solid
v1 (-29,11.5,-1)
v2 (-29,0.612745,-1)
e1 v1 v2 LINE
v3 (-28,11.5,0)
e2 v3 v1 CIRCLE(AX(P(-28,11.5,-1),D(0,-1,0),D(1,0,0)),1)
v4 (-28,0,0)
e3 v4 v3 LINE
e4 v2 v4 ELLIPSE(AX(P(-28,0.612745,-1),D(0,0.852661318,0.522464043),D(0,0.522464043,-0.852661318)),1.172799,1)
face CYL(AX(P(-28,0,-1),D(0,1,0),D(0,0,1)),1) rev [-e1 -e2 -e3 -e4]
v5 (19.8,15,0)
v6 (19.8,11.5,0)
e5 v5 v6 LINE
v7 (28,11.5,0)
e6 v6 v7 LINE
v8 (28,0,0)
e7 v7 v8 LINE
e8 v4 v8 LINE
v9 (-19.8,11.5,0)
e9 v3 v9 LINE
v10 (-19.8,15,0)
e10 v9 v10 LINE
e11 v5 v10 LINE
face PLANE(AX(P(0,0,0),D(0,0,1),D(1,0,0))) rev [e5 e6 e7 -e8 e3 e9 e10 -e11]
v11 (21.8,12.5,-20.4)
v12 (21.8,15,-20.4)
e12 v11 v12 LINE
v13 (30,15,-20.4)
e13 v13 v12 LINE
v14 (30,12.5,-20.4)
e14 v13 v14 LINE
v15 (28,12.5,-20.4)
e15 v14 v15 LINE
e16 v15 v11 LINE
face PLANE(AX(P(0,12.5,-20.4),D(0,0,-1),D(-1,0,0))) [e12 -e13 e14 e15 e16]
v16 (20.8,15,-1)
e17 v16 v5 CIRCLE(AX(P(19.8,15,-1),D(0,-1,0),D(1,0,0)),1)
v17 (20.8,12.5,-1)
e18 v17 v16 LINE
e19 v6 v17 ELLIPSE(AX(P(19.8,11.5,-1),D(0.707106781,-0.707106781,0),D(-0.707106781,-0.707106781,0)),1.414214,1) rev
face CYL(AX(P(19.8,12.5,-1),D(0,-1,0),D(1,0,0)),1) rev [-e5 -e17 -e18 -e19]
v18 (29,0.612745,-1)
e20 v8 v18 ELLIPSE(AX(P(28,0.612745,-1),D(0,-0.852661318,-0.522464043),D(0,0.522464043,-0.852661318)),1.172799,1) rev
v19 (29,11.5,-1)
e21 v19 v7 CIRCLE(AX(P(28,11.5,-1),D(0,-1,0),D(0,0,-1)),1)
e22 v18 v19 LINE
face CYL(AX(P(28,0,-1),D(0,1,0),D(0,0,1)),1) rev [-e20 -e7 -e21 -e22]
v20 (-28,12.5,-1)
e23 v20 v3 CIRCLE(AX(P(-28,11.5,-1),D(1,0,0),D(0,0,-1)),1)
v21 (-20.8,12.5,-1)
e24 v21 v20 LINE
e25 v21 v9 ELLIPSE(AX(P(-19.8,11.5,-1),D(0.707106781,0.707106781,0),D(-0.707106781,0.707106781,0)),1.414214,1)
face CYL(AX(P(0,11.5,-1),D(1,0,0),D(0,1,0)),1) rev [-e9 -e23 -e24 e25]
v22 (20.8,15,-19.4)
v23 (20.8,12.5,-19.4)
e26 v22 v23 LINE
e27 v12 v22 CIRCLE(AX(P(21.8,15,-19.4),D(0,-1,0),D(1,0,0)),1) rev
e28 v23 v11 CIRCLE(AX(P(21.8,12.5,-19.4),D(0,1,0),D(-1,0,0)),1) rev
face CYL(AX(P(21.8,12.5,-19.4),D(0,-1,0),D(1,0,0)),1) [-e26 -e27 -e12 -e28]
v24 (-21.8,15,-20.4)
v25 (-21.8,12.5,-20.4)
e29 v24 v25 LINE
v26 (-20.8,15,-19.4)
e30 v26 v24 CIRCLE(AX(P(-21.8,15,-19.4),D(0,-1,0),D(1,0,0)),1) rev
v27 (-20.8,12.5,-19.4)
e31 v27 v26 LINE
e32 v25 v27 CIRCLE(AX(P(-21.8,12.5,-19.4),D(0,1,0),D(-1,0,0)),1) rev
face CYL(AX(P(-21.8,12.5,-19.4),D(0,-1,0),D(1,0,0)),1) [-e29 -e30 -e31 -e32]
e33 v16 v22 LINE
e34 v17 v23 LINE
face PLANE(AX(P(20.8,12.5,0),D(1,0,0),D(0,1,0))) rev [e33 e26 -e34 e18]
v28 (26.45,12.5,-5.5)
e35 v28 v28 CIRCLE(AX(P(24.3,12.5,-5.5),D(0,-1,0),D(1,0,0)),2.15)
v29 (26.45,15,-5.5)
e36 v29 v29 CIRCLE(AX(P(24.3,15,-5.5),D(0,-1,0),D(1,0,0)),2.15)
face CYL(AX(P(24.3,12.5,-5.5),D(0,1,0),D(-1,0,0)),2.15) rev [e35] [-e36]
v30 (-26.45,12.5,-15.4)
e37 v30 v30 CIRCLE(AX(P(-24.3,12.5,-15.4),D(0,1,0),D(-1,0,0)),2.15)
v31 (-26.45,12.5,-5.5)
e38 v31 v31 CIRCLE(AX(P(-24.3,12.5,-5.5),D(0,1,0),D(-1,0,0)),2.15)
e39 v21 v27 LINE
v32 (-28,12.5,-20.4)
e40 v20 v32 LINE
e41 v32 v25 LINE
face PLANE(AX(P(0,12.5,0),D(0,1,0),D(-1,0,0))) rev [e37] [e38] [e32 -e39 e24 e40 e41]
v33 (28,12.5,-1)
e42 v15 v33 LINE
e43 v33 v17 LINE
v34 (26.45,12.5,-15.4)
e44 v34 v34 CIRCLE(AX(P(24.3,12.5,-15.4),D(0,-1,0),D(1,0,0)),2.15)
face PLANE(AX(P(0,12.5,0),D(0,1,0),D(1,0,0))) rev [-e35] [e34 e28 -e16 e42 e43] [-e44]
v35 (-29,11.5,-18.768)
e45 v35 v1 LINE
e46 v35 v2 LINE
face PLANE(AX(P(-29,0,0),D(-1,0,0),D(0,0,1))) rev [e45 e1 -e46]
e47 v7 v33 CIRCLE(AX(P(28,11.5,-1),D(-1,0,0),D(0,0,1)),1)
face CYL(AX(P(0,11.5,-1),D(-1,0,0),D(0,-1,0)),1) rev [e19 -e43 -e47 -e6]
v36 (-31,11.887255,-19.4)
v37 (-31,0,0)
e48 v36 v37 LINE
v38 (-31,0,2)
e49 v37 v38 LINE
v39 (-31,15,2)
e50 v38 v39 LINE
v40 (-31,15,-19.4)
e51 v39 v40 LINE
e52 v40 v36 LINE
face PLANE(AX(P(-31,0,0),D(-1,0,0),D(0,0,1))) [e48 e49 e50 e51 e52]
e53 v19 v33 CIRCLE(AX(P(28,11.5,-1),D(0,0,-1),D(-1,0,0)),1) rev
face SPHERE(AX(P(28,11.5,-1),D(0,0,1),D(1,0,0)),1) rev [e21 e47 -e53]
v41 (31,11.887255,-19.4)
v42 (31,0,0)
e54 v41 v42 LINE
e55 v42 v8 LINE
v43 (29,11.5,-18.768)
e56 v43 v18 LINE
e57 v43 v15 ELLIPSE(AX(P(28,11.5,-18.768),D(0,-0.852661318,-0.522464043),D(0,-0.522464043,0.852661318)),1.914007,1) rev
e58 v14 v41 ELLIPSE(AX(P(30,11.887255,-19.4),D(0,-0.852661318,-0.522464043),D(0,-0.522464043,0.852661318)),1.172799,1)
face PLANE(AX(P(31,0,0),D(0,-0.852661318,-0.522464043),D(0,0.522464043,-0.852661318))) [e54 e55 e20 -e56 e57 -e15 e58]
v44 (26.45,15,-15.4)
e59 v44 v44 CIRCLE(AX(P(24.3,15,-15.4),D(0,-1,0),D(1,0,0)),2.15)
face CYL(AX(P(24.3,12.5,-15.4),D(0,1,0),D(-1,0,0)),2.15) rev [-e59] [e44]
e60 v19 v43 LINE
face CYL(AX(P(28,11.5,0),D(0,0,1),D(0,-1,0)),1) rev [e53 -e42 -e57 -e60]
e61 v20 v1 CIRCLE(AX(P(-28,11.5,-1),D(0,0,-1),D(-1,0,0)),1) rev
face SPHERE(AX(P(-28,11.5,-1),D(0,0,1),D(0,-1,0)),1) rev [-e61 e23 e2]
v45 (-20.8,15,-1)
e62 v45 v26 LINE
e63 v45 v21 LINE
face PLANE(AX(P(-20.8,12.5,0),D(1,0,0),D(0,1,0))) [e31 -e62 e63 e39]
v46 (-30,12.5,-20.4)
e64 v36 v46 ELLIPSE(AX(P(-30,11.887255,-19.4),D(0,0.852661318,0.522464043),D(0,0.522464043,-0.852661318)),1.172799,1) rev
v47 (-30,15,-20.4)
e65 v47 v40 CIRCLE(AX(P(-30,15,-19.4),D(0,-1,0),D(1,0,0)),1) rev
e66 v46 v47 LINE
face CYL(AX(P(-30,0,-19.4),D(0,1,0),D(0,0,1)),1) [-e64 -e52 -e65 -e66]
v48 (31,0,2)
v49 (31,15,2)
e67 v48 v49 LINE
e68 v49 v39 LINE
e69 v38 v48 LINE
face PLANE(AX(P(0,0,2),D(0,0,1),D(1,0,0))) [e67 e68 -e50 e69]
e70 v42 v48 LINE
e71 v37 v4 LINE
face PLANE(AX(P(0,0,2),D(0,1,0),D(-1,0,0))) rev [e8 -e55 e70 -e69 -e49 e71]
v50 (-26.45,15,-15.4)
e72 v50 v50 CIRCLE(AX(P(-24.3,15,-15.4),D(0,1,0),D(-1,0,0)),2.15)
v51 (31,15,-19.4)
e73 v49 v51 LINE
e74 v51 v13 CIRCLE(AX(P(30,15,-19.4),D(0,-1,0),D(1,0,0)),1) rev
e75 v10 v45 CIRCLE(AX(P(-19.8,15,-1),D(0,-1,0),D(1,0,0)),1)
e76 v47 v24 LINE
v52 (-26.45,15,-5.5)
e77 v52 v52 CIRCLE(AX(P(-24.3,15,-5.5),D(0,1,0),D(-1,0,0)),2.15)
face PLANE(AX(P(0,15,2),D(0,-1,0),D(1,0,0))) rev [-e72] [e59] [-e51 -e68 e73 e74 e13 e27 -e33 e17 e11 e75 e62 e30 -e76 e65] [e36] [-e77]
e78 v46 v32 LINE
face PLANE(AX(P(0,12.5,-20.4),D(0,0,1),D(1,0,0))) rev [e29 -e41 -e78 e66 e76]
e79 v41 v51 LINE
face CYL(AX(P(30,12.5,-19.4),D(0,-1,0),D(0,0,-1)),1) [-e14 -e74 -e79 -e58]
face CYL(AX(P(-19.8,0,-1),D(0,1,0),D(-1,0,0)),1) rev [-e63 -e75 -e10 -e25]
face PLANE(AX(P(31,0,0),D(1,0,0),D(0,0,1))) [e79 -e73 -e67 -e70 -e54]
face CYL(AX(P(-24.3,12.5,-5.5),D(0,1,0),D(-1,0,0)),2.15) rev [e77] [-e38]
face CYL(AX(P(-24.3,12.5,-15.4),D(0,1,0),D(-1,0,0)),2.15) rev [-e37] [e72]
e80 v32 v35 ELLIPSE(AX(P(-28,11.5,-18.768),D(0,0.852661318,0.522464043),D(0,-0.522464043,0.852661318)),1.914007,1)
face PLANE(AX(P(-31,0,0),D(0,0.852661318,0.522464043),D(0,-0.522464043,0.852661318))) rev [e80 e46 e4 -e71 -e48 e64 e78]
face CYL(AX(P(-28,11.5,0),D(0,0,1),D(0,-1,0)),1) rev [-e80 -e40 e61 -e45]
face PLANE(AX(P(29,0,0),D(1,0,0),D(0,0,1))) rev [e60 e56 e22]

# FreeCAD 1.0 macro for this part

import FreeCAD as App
import Part
import Sketcher
from FreeCAD import Vector
Q = App.Units.Quantity


def edges_at(feature, points):
    """Names of the edges that pass closest to the given points."""
    edges = feature.Shape.Edges
    near = lambda p: min(range(len(edges)), key=lambda i: edges[i].distToShape(Part.Vertex(*p))[0])
    return sorted({f"Edge{near(p) + 1}" for p in points})

doc = App.newDocument("Part")
params = doc.addObject("Spreadsheet::Sheet", "Params")
for row, (alias, value) in enumerate([
    ("sketch1_width", "29 mm"),
    ("sketch1_height", "15 mm"),
    ("pad1_length", "2 mm"),
    ("sketch2_diameter", "4.3 mm"),
    ("sketch2_width", "8.2 mm"),
    ("sketch2_height", "20.4 mm"),
    ("pad2_length", "2.5 mm"),
    ("sketch3_width", "15 mm"),
    ("sketch3_height", "2 mm"),
    ("sketch3_width2", "2.5 mm"),
    ("sketch3_height2", "22.4 mm"),
    ("pad3_length", "2 mm"),
    ("fillet_radius", "1 mm"),
    ("fillet2_radius", "1 mm"),
], start=1):
    params.set(f"A{row}", alias)
    params.set(f"B{row}", "=" + value)
    params.setAlias(f"B{row}", alias)

body = doc.addObject("PartDesign::Body", "Body")

# Sketch on XY plane
sketch1 = body.newObject("Sketcher::SketchObject", "Sketch")
sketch1.AttachmentSupport = (doc.getObject("XY_Plane"), [""])
sketch1.MapMode = "FlatFace"
sketch1.addGeometry(Part.LineSegment(Vector(-29, 15, 0), Vector(-29, 0, 0)), False)
sketch1.addGeometry(Part.LineSegment(Vector(-29, 0, 0), Vector(0, 0, 0)), False)
sketch1.addGeometry(Part.LineSegment(Vector(0, 0, 0), Vector(0, 15, 0)), False)
sketch1.addGeometry(Part.LineSegment(Vector(0, 15, 0), Vector(-29, 15, 0)), False)
sketch1.addConstraint(Sketcher.Constraint("Coincident", 0, 2, 1, 1))
sketch1.addConstraint(Sketcher.Constraint("Coincident", 1, 2, 2, 1))
sketch1.addConstraint(Sketcher.Constraint("Coincident", 2, 2, 3, 1))
sketch1.addConstraint(Sketcher.Constraint("Coincident", 3, 2, 0, 1))
sketch1.addConstraint(Sketcher.Constraint("Vertical", 0))
sketch1.addConstraint(Sketcher.Constraint("Horizontal", 1))
sketch1.addConstraint(Sketcher.Constraint("Vertical", 2))
sketch1.addConstraint(Sketcher.Constraint("Horizontal", 3))
sketch1.addConstraint(Sketcher.Constraint("Coincident", 1, 2, -1, 1))
sketch1.addConstraint(Sketcher.Constraint("DistanceX", 1, 1, 1, 2, Q("29 mm")))
sketch1.addConstraint(Sketcher.Constraint("DistanceY", 0, 2, 0, 1, Q("15 mm")))
sketch1.setExpression("Constraints[9]", "Params.sketch1_width")
sketch1.setExpression("Constraints[10]", "Params.sketch1_height")
pad1 = body.newObject("PartDesign::Pad", "Pad")
pad1.Profile = sketch1
pad1.setExpression("Length", "Params.pad1_length")

# Sketch on XZ plane
sketch2 = body.newObject("Sketcher::SketchObject", "Sketch001")
sketch2.AttachmentSupport = (doc.getObject("XZ_Plane"), [""])
sketch2.MapMode = "FlatFace"
sketch2.AttachmentOffset = App.Placement(Vector(0, 0, -15), App.Rotation())
sketch2.addGeometry(Part.LineSegment(Vector(-29, -20.4, 0), Vector(-29, 0, 0)), False)
sketch2.addGeometry(Part.LineSegment(Vector(-29, 0, 0), Vector(-20.8, 0, 0)), False)
sketch2.addGeometry(Part.LineSegment(Vector(-20.8, 0, 0), Vector(-20.8, -20.4, 0)), False)
sketch2.addGeometry(Part.LineSegment(Vector(-20.8, -20.4, 0), Vector(-29, -20.4, 0)), False)
sketch2.addGeometry(Part.Circle(Vector(-24.3, -5.5, 0), Vector(0, 0, 1), 2.15), False)
sketch2.addGeometry(Part.Circle(Vector(-24.3, -15.4, 0), Vector(0, 0, 1), 2.15), False)
sketch2.addConstraint(Sketcher.Constraint("Coincident", 0, 2, 1, 1))
sketch2.addConstraint(Sketcher.Constraint("Coincident", 1, 2, 2, 1))
sketch2.addConstraint(Sketcher.Constraint("Coincident", 2, 2, 3, 1))
sketch2.addConstraint(Sketcher.Constraint("Coincident", 3, 2, 0, 1))
sketch2.addConstraint(Sketcher.Constraint("Vertical", 0))
sketch2.addConstraint(Sketcher.Constraint("Horizontal", 1))
sketch2.addConstraint(Sketcher.Constraint("Vertical", 2))
sketch2.addConstraint(Sketcher.Constraint("Horizontal", 3))
sketch2.addConstraint(Sketcher.Constraint("Equal", 4, 5))
sketch2.addConstraint(Sketcher.Constraint("PointOnObject", 0, 2, -1))
sketch2.addConstraint(Sketcher.Constraint("Vertical", 4, 3, 5, 3))
sketch2.addConstraint(Sketcher.Constraint("Diameter", 4, Q("4.3 mm")))
sketch2.addConstraint(Sketcher.Constraint("DistanceX", 1, 1, 1, 2, Q("8.2 mm")))
sketch2.addConstraint(Sketcher.Constraint("DistanceY", 0, 1, 0, 2, Q("20.4 mm")))
sketch2.addConstraint(Sketcher.Constraint("DistanceX", 0, 2, -1, 1, Q("29 mm")))
sketch2.addConstraint(Sketcher.Constraint("DistanceY", 2, 2, 5, 3, Q("5 mm")))
sketch2.addConstraint(Sketcher.Constraint("DistanceX", 4, 3, -1, 1, Q("24.3 mm")))
sketch2.addConstraint(Sketcher.Constraint("DistanceY", 4, 3, -1, 1, Q("5.5 mm")))
sketch2.setExpression("Constraints[11]", "Params.sketch2_diameter")
sketch2.setExpression("Constraints[12]", "Params.sketch2_width")
sketch2.setExpression("Constraints[13]", "Params.sketch2_height")
pad2 = body.newObject("PartDesign::Pad", "Pad001")
pad2.Profile = sketch2
pad2.setExpression("Length", "Params.pad2_length")

# Sketch on YZ plane
sketch3 = body.newObject("Sketcher::SketchObject", "Sketch002")
sketch3.AttachmentSupport = (doc.getObject("YZ_Plane"), [""])
sketch3.MapMode = "FlatFace"
sketch3.AttachmentOffset = App.Placement(Vector(0, 0, -29), App.Rotation())
sketch3.addGeometry(Part.LineSegment(Vector(12.5, -20.4, 0), Vector(0, 0, 0)), False)
sketch3.addGeometry(Part.LineSegment(Vector(0, 0, 0), Vector(0, 2, 0)), False)
sketch3.addGeometry(Part.LineSegment(Vector(0, 2, 0), Vector(15, 2, 0)), False)
sketch3.addGeometry(Part.LineSegment(Vector(15, 2, 0), Vector(15, -20.4, 0)), False)
sketch3.addGeometry(Part.LineSegment(Vector(15, -20.4, 0), Vector(12.5, -20.4, 0)), False)
sketch3.addConstraint(Sketcher.Constraint("Coincident", 0, 2, 1, 1))
sketch3.addConstraint(Sketcher.Constraint("Coincident", 1, 2, 2, 1))
sketch3.addConstraint(Sketcher.Constraint("Coincident", 2, 2, 3, 1))
sketch3.addConstraint(Sketcher.Constraint("Coincident", 3, 2, 4, 1))
sketch3.addConstraint(Sketcher.Constraint("Coincident", 4, 2, 0, 1))
sketch3.addConstraint(Sketcher.Constraint("Vertical", 1))
sketch3.addConstraint(Sketcher.Constraint("Horizontal", 2))
sketch3.addConstraint(Sketcher.Constraint("Vertical", 3))
sketch3.addConstraint(Sketcher.Constraint("Horizontal", 4))
sketch3.addConstraint(Sketcher.Constraint("Coincident", 0, 2, -1, 1))
sketch3.addConstraint(Sketcher.Constraint("DistanceX", 2, 1, 2, 2, Q("15 mm")))
sketch3.addConstraint(Sketcher.Constraint("DistanceY", 1, 1, 1, 2, Q("2 mm")))
sketch3.addConstraint(Sketcher.Constraint("DistanceX", 4, 2, 4, 1, Q("2.5 mm")))
sketch3.addConstraint(Sketcher.Constraint("DistanceY", 3, 2, 3, 1, Q("22.4 mm")))
sketch3.setExpression("Constraints[10]", "Params.sketch3_width")
sketch3.setExpression("Constraints[11]", "Params.sketch3_height")
sketch3.setExpression("Constraints[12]", "Params.sketch3_width2")
sketch3.setExpression("Constraints[13]", "Params.sketch3_height2")
pad3 = body.newObject("PartDesign::Pad", "Pad002")
pad3.Profile = sketch3
pad3.setExpression("Length", "Params.pad3_length")
pad3.Reversed = True
doc.recompute()

fillet = body.newObject("PartDesign::Fillet", "Fillet")
fillet.Base = (pad3, edges_at(pad3, [
    (-29, 6.25, 0),
    (-20.8, 13.75, 0),
    (-20.8, 13.75, -20.4),
    (-24.9, 12.5, 0),
    (-29, 12.5, -10.2),
    (-31, 13.75, -20.4),
]))
fillet.setExpression("Radius", "Params.fillet_radius")
doc.recompute()

mirrored = body.newObject("PartDesign::Mirrored", "Mirrored")
mirrored.Originals = [pad1, pad2, pad3]
mirrored.MirrorPlane = (doc.getObject("YZ_Plane"), [""])
body.Tip = mirrored
doc.recompute()

fillet2 = body.newObject("PartDesign::Fillet", "Fillet001")
fillet2.Base = (mirrored, edges_at(mirrored, [
    (29, 6.25, 0),
    (20.8, 13.75, 0),
    (20.8, 13.75, -20.4),
    (24.9, 12.5, 0),
    (29, 12.5, -10.2),
    (31, 13.75, -20.4),
]))
fillet2.setExpression("Radius", "Params.fillet2_radius")

doc.recompute()
